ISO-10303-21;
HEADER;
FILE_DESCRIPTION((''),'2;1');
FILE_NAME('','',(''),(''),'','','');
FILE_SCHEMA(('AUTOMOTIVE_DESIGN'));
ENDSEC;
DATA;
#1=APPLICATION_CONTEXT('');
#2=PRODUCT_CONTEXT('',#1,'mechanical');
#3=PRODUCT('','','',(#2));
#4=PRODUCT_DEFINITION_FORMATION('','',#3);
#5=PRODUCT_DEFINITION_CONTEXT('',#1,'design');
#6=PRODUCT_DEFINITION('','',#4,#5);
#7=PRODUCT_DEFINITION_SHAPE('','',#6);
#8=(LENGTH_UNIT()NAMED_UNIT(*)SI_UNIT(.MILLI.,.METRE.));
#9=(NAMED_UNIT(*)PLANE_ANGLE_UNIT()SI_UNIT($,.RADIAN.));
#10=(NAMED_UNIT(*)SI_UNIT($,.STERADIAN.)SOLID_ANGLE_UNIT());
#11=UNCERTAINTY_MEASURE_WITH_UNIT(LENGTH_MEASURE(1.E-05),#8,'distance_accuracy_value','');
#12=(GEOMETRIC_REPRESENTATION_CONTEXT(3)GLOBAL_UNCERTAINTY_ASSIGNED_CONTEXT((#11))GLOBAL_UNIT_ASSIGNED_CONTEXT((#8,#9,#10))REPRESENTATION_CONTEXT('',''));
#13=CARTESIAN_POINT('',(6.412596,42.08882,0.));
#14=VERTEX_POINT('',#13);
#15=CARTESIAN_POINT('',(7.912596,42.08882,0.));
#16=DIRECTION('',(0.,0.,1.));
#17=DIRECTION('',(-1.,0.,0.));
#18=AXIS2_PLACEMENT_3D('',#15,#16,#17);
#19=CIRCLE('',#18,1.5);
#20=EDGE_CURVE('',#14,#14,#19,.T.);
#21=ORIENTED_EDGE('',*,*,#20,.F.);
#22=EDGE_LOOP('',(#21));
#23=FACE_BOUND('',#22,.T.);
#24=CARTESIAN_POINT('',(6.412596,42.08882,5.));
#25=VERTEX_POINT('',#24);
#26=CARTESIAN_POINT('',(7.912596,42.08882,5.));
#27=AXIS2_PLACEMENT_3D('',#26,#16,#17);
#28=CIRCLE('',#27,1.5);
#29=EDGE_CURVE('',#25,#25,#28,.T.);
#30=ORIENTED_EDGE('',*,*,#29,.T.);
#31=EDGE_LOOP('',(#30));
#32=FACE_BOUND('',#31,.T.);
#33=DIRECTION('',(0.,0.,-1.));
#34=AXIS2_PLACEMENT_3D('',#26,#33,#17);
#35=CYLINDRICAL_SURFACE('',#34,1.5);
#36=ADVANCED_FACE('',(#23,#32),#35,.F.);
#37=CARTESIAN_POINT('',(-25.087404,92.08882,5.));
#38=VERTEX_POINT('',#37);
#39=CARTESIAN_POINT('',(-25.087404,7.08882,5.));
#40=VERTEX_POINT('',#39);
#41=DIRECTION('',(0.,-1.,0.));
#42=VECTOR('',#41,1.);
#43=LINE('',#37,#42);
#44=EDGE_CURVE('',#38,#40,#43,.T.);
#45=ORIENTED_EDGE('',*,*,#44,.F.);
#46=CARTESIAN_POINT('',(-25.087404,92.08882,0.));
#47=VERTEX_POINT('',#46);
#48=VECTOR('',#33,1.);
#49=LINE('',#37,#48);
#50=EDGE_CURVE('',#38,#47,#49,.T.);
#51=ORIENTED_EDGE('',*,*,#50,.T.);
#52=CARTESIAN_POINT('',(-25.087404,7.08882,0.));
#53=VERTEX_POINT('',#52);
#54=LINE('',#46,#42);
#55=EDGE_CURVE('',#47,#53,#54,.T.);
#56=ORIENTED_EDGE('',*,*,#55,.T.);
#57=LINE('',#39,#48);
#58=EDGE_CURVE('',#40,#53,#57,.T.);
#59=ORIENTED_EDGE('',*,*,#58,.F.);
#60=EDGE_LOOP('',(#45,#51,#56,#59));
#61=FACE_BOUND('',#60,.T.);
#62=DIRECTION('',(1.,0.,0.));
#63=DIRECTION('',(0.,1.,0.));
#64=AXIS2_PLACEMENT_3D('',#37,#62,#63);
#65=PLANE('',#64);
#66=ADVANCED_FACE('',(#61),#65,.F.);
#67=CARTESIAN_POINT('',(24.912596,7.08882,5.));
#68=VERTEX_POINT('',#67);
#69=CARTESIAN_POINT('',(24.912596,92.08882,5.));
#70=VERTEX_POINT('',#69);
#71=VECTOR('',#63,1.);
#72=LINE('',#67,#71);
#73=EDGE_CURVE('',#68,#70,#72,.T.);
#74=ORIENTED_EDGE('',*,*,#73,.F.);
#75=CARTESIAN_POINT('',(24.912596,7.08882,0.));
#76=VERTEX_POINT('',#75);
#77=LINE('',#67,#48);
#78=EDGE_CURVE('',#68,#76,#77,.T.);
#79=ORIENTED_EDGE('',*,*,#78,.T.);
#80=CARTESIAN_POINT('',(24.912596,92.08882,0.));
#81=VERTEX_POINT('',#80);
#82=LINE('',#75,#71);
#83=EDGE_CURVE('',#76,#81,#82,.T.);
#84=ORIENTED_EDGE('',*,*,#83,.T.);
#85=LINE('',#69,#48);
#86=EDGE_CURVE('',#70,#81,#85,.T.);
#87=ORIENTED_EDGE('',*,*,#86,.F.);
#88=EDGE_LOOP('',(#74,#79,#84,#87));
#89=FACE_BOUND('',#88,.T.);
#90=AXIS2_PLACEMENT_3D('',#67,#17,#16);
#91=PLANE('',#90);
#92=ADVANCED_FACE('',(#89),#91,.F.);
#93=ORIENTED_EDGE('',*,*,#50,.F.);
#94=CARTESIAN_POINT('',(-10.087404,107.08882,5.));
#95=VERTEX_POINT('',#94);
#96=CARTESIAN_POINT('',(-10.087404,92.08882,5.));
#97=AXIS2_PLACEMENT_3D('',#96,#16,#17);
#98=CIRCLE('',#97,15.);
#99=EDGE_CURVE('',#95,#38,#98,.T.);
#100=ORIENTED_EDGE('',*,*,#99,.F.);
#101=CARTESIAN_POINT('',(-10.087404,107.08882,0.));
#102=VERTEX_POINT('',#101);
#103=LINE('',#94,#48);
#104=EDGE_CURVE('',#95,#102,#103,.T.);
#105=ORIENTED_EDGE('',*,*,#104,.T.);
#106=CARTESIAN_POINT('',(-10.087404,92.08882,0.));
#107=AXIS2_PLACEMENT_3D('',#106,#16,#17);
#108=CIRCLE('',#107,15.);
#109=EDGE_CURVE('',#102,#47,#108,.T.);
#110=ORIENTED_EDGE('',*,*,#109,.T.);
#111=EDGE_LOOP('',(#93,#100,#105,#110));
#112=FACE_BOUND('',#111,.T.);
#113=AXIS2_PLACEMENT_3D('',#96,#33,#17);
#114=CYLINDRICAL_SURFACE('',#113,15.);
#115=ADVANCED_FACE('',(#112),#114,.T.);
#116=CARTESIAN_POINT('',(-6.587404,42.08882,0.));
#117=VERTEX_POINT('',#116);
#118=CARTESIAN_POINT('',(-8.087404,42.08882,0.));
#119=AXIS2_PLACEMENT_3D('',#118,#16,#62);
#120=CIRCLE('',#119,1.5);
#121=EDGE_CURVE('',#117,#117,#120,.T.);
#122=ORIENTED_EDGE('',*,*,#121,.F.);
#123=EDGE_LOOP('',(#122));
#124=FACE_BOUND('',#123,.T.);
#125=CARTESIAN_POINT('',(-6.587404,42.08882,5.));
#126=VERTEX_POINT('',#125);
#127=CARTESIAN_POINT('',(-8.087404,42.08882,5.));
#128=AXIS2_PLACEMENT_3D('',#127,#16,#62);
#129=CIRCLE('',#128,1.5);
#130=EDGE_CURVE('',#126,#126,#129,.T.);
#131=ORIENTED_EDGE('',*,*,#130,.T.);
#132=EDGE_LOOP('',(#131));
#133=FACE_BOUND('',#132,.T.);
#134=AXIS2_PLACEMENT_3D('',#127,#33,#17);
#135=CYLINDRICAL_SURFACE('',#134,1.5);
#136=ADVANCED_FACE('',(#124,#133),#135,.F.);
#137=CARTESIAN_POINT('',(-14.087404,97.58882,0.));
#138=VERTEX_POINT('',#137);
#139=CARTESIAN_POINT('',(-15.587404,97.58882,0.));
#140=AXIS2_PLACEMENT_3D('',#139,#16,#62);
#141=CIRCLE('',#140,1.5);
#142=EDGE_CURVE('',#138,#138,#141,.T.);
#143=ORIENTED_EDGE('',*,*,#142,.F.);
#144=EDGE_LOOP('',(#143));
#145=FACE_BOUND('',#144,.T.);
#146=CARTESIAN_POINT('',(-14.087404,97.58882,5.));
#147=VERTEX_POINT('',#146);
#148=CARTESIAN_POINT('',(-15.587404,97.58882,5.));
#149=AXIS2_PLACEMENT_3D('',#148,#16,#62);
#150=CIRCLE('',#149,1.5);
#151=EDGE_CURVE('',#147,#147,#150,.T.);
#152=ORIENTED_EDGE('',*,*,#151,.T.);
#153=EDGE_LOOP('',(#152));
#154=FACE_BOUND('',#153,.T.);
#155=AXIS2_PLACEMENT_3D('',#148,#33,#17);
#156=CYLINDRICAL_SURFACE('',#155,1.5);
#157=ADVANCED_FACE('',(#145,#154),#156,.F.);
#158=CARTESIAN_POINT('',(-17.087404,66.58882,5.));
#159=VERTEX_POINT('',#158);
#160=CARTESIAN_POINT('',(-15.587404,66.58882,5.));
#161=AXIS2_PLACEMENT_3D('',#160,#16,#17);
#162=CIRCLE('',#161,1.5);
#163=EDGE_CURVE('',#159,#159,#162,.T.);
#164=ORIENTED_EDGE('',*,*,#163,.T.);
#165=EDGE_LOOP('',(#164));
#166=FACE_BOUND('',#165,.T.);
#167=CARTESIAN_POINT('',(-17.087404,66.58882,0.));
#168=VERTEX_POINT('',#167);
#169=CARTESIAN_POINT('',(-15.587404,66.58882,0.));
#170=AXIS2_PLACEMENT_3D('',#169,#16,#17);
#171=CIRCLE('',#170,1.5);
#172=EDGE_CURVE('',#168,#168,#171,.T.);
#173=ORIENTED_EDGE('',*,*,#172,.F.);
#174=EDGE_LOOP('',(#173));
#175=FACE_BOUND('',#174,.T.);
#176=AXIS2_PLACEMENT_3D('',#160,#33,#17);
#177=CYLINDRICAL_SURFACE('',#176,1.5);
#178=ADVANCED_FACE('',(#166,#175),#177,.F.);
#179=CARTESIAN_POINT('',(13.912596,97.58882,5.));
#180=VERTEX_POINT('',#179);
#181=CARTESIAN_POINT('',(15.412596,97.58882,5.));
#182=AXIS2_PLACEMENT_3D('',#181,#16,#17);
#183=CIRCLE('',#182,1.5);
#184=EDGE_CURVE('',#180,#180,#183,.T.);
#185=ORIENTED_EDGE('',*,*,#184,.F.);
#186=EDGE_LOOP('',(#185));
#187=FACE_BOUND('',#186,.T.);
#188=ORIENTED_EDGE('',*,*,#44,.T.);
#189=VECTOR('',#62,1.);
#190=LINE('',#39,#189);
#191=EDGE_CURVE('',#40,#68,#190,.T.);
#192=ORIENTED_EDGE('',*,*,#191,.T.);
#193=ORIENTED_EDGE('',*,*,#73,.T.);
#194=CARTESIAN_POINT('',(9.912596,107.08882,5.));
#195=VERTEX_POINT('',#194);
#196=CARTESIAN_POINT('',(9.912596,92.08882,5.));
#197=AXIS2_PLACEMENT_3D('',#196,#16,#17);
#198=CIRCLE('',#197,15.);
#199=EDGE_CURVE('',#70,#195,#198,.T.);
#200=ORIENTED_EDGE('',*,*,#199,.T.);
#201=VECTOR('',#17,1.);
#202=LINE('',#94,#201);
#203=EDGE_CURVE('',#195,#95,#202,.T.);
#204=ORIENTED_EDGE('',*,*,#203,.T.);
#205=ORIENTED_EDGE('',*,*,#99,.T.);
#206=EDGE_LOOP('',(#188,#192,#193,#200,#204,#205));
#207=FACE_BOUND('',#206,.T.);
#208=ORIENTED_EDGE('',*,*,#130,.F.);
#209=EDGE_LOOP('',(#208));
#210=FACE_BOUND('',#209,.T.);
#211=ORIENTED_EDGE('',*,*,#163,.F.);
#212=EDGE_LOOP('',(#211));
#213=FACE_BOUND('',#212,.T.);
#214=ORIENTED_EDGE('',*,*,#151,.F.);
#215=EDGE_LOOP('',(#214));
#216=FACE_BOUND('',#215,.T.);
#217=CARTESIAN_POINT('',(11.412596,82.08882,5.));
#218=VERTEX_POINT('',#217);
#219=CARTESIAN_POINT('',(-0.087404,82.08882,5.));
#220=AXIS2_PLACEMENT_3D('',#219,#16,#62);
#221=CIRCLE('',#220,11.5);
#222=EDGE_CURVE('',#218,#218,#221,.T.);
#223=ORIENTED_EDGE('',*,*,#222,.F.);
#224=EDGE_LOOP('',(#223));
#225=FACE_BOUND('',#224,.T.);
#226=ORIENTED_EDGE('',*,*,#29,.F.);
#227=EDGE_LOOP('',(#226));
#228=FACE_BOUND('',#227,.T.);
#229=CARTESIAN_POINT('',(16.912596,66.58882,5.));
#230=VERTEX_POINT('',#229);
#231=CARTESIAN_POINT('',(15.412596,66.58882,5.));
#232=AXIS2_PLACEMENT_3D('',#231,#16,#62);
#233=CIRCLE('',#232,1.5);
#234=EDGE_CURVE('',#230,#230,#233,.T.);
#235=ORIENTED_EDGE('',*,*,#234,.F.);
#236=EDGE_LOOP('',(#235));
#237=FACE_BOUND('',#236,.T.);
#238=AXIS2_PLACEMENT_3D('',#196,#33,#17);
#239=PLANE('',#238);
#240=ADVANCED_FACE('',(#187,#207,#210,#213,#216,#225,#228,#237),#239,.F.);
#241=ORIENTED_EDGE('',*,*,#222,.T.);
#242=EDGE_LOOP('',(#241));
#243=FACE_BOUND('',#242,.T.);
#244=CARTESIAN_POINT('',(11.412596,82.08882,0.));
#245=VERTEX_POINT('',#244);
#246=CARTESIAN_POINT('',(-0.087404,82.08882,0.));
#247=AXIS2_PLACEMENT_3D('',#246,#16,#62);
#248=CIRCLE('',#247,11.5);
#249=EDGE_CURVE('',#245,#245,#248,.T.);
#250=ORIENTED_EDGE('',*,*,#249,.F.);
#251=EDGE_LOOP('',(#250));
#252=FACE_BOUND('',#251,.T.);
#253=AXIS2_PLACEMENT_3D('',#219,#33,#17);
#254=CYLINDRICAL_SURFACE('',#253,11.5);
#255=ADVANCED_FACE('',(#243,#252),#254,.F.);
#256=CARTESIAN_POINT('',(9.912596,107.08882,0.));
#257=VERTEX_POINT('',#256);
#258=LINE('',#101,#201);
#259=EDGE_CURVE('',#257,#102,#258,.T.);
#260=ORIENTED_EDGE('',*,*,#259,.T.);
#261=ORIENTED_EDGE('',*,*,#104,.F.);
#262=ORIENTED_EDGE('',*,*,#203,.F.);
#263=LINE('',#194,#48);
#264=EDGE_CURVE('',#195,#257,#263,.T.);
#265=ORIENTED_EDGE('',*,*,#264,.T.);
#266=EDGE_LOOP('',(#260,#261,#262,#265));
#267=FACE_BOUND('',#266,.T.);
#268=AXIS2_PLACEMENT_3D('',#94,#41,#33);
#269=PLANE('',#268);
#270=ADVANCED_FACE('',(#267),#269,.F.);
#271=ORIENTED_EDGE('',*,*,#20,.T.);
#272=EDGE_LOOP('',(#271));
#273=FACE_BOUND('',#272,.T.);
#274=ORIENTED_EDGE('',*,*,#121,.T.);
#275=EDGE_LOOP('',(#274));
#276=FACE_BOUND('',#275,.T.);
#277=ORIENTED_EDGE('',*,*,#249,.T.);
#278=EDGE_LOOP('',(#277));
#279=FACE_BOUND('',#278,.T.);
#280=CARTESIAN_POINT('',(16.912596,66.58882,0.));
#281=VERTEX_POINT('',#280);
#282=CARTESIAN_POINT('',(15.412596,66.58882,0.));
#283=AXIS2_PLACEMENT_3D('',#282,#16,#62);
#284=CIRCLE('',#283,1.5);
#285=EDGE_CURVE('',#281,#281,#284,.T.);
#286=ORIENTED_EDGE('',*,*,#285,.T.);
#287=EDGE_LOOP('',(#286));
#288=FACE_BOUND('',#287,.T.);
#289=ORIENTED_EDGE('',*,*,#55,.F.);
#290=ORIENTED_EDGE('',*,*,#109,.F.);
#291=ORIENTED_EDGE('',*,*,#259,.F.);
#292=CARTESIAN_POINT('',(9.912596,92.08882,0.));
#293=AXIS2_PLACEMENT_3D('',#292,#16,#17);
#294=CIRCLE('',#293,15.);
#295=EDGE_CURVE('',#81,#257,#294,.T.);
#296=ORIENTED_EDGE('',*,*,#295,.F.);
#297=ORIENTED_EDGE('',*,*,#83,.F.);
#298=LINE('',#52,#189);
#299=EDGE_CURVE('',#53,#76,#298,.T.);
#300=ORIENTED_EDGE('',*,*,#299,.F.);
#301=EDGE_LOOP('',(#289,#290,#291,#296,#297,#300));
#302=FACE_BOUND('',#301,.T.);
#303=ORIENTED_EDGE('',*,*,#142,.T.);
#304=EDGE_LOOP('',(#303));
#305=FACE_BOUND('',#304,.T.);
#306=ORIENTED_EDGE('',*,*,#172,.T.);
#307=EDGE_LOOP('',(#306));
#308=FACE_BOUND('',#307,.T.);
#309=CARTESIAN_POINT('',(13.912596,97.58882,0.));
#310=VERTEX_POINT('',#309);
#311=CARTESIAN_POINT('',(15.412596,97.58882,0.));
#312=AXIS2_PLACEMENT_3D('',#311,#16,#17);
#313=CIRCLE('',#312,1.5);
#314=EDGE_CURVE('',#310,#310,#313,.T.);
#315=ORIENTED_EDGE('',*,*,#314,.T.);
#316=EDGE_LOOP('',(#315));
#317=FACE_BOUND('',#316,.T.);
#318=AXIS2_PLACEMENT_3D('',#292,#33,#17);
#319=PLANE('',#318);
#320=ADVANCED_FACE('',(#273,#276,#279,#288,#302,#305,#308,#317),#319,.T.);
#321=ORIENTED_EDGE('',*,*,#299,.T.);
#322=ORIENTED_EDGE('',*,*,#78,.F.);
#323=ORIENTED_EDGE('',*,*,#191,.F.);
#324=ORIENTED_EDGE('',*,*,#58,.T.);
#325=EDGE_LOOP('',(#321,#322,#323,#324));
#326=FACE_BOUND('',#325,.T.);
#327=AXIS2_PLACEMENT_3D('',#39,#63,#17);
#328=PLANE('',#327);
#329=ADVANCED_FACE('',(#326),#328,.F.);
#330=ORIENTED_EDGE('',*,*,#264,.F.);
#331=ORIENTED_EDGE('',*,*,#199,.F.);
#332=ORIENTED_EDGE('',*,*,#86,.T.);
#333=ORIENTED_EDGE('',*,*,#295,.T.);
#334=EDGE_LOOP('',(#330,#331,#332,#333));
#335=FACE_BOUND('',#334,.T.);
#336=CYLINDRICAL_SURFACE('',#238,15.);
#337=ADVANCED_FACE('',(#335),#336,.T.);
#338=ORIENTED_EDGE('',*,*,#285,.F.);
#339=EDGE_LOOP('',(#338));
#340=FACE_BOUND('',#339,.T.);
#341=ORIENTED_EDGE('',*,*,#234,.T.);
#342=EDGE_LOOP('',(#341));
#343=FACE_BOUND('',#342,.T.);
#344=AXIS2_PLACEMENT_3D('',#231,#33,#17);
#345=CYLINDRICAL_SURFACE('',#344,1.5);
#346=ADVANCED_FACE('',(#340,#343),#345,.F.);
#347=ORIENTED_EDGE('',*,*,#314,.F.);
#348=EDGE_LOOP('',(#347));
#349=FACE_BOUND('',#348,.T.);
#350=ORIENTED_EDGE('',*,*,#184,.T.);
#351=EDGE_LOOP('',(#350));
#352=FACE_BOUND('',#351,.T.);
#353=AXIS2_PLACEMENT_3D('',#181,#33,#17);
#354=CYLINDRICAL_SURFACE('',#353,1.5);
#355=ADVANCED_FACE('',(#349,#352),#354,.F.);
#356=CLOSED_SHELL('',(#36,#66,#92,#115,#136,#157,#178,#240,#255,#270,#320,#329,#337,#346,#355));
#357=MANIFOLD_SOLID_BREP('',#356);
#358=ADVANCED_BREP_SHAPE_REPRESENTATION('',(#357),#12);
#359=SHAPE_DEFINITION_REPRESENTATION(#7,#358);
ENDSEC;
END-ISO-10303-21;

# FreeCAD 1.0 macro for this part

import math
import FreeCAD as App
import Part
import Sketcher
from FreeCAD import Vector

doc = App.newDocument("Part")
body = doc.addObject("PartDesign::Body", "Body")

# Sketch on XY plane
sketch1 = body.newObject("Sketcher::SketchObject", "Sketch")
sketch1.AttachmentSupport = (doc.getObject("XY_Plane"), [""])
sketch1.MapMode = "FlatFace"
sketch1.addGeometry([
    Part.LineSegment(Vector(9.912596, 107.08882, 0), Vector(-10.087404, 107.08882, 0)),  # 0
    Part.ArcOfCircle(Part.Circle(Vector(-10.087404, 92.08882, 0), Vector(0, 0, 1), 15), math.radians(90), math.radians(180)),  # 1
    Part.LineSegment(Vector(-25.087404, 92.08882, 0), Vector(-25.087404, 7.08882, 0)),  # 2
    Part.LineSegment(Vector(-25.087404, 7.08882, 0), Vector(24.912596, 7.08882, 0)),  # 3
    Part.LineSegment(Vector(24.912596, 7.08882, 0), Vector(24.912596, 92.08882, 0)),  # 4
    Part.ArcOfCircle(Part.Circle(Vector(9.912596, 92.08882, 0), Vector(0, 0, 1), 15), math.radians(0), math.radians(90)),  # 5
    Part.Circle(Vector(7.912596, 42.08882, 0), Vector(0, 0, 1), 1.5),  # 6
    Part.Circle(Vector(15.412596, 66.58882, 0), Vector(0, 0, 1), 1.5),  # 7
    Part.Circle(Vector(-8.087404, 42.08882, 0), Vector(0, 0, 1), 1.5),  # 8
    Part.Circle(Vector(-15.587404, 66.58882, 0), Vector(0, 0, 1), 1.5),  # 9
    Part.Circle(Vector(15.412596, 97.58882, 0), Vector(0, 0, 1), 1.5),  # 10
    Part.Circle(Vector(-0.087404, 82.08882, 0), Vector(0, 0, 1), 11.5),  # 11
    Part.Circle(Vector(-15.587404, 97.58882, 0), Vector(0, 0, 1), 1.5),  # 12
], False)
sketch1.addConstraint([
    Sketcher.Constraint("Tangent", 0, 2, 1, 1),
    Sketcher.Constraint("Tangent", 1, 2, 2, 1),
    Sketcher.Constraint("Coincident", 2, 2, 3, 1),
    Sketcher.Constraint("Coincident", 3, 2, 4, 1),
    Sketcher.Constraint("Tangent", 4, 2, 5, 1),
    Sketcher.Constraint("Tangent", 5, 2, 0, 1),
    Sketcher.Constraint("Horizontal", 0),
    Sketcher.Constraint("Vertical", 2),
    Sketcher.Constraint("Horizontal", 3),
    Sketcher.Constraint("Vertical", 4),
    Sketcher.Constraint("Equal", 1, 5),
    Sketcher.Constraint("Equal", 6, 7),
    Sketcher.Constraint("Equal", 7, 8),
    Sketcher.Constraint("Equal", 8, 9),
    Sketcher.Constraint("Equal", 9, 10),
    Sketcher.Constraint("Equal", 10, 12),
    Sketcher.Constraint("Horizontal", 6, 3, 8, 3),
    Sketcher.Constraint("Horizontal", 7, 3, 9, 3),
    Sketcher.Constraint("Horizontal", 10, 3, 12, 3),
    Sketcher.Constraint("Vertical", 7, 3, 10, 3),
    Sketcher.Constraint("Vertical", 9, 3, 12, 3),
    Sketcher.Constraint("Diameter", 6, 3.0),
    Sketcher.Constraint("Diameter", 11, 23.0),
    Sketcher.Constraint("Radius", 1, 15.0),
    Sketcher.Constraint("DistanceX", 0, 2, 0, 1, 20.0),
    Sketcher.Constraint("DistanceY", 2, 2, 2, 1, 85.0),
    Sketcher.Constraint("DistanceX", 6, 3, 5, 3, 2.0),
    Sketcher.Constraint("DistanceY", 6, 3, 5, 3, 50.0),
    Sketcher.Constraint("DistanceX", 8, 3, 6, 3, 16.0),
    Sketcher.Constraint("DistanceX", 9, 3, 7, 3, 31.0),
    Sketcher.Constraint("DistanceY", 7, 3, 10, 3, 31.0),
    Sketcher.Constraint("DistanceX", 1, 3, 11, 3, 10.0),
    Sketcher.Constraint("DistanceY", 11, 3, 1, 3, 10.0),
    Sketcher.Constraint("DistanceX", 6, 3, 7, 3, 7.5),
    Sketcher.Constraint("DistanceY", 6, 3, 7, 3, 24.5),
    Sketcher.Constraint("DistanceY", -1, 1, 1, 3, 92.08882),
    Sketcher.Constraint("DistanceX", 1, 3, -1, 1, 10.087404),
])
pad1 = body.newObject("PartDesign::Pad", "Pad")
pad1.Profile = sketch1
pad1.Length = 5

doc.recompute()
